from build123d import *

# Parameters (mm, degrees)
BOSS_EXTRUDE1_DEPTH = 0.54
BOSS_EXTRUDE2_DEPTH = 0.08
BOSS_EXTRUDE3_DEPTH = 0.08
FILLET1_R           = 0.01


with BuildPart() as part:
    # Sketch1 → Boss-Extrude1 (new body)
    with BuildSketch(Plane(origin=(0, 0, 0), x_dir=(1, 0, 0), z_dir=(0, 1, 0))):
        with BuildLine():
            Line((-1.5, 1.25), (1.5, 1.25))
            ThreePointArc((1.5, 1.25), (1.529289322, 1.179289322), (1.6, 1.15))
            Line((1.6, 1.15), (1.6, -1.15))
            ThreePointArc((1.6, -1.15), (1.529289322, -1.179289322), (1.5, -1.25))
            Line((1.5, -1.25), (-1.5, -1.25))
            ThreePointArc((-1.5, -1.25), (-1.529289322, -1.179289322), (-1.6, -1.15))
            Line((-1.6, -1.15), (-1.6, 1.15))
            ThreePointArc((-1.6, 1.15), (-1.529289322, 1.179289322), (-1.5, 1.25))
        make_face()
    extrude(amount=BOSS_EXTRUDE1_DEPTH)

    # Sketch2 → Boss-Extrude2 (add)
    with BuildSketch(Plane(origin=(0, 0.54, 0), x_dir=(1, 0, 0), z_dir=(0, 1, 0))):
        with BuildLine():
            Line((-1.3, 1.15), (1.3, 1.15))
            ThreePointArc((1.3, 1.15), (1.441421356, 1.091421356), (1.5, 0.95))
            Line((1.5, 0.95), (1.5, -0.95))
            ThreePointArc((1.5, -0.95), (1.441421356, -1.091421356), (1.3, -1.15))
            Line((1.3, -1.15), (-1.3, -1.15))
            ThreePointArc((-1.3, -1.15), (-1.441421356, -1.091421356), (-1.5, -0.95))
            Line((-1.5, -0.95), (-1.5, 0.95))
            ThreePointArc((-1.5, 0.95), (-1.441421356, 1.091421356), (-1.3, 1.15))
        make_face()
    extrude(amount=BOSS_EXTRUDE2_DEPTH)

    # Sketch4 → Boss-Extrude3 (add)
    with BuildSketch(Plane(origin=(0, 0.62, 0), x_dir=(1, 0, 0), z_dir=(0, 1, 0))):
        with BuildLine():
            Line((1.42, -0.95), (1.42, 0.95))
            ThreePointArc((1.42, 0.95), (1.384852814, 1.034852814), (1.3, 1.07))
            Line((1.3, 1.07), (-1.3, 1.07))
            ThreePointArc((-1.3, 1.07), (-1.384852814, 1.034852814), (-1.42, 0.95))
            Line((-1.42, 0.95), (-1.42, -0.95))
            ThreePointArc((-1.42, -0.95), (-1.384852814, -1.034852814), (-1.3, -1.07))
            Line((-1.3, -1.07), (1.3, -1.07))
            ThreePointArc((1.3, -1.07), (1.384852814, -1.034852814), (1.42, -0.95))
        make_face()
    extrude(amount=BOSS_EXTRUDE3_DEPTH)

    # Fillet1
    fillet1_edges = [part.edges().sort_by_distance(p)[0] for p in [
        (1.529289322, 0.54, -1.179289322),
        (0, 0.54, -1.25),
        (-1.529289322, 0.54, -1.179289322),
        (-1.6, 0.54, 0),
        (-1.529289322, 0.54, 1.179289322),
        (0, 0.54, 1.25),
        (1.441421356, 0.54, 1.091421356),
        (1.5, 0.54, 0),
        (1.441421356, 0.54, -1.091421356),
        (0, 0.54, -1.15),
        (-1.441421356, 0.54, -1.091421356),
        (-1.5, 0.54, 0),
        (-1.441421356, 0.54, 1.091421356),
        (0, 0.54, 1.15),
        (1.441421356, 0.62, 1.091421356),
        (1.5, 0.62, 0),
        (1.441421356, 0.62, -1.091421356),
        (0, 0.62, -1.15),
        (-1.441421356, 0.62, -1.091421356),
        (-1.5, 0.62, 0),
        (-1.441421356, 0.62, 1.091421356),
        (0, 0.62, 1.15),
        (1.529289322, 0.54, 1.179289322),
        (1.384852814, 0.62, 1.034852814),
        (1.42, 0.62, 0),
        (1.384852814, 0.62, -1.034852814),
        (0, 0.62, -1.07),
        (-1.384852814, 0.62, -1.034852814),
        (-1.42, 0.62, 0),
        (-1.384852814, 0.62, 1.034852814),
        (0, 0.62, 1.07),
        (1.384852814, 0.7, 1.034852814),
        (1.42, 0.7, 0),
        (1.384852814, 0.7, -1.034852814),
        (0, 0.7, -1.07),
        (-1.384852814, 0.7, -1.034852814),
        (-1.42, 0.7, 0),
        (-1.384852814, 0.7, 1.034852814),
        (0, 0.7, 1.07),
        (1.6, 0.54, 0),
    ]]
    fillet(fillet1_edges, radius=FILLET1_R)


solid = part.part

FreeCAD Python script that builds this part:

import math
import FreeCAD as App
import Part
import Sketcher

V = App.Vector
Q = App.Units.Quantity


def edges_at(feature, points):
    """Names of the edges that pass closest to the given points."""
    edges = feature.Shape.Edges
    near = lambda p: min(range(len(edges)), key=lambda i: edges[i].distToShape(Part.Vertex(*p))[0])
    return sorted({f"Edge{near(p) + 1}" for p in points})

doc = App.newDocument("Part")
params = doc.addObject("Spreadsheet::Sheet", "Params")
for row, (alias, value) in enumerate([
    ("sketch1_radius", "0.1 mm"),
    ("sketch1_width", "3 mm"),
    ("sketch1_height", "2.3 mm"),
    ("pad1_length", "0.54 mm"),
    ("sketch2_radius", "0.2 mm"),
    ("sketch2_width", "2.6 mm"),
    ("sketch2_height", "1.9 mm"),
    ("pad2_length", "0.08 mm"),
    ("sketch3_radius", "0.12 mm"),
    ("sketch3_width", "2.6 mm"),
    ("sketch3_height", "1.9 mm"),
    ("pad3_length", "0.08 mm"),
    ("fillet_radius", "0.01 mm"),
], start=1):
    params.set(f"A{row}", alias)
    params.set(f"B{row}", "=" + value)
    params.setAlias(f"B{row}", alias)

body = doc.addObject("PartDesign::Body", "Body")

sketch1 = doc.addObject("Sketcher::SketchObject", "Sketch")
body.addObject(sketch1)
sketch1.AttachmentSupport = (doc.XZ_Plane, [""])
sketch1.MapMode = "FlatFace"
sketch1.addGeometry(Part.LineSegment(V(1.5, -1.25, 0), V(-1.5, -1.25, 0)), False)
sketch1.addGeometry(Part.ArcOfCircle(Part.Circle(V(-1.6, -1.25, 0), V(0, 0, 1), 0.1), math.radians(0), math.radians(90)), False)
sketch1.addGeometry(Part.LineSegment(V(-1.6, -1.15, 0), V(-1.6, 1.15, 0)), False)
sketch1.addGeometry(Part.ArcOfCircle(Part.Circle(V(-1.6, 1.25, 0), V(0, 0, 1), 0.1), math.radians(-90), math.radians(0)), False)
sketch1.addGeometry(Part.LineSegment(V(-1.5, 1.25, 0), V(1.5, 1.25, 0)), False)
sketch1.addGeometry(Part.ArcOfCircle(Part.Circle(V(1.6, 1.25, 0), V(0, 0, 1), 0.1), math.radians(180), math.radians(270)), False)
sketch1.addGeometry(Part.LineSegment(V(1.6, 1.15, 0), V(1.6, -1.15, 0)), False)
sketch1.addGeometry(Part.ArcOfCircle(Part.Circle(V(1.6, -1.25, 0), V(0, 0, 1), 0.1), math.radians(90), math.radians(180)), False)
sketch1.addConstraint(Sketcher.Constraint("Coincident", 0, 2, 1, 1))
sketch1.addConstraint(Sketcher.Constraint("Coincident", 1, 2, 2, 1))
sketch1.addConstraint(Sketcher.Constraint("Coincident", 2, 2, 3, 1))
sketch1.addConstraint(Sketcher.Constraint("Coincident", 3, 2, 4, 1))
sketch1.addConstraint(Sketcher.Constraint("Coincident", 4, 2, 5, 1))
sketch1.addConstraint(Sketcher.Constraint("Coincident", 5, 2, 6, 1))
sketch1.addConstraint(Sketcher.Constraint("Coincident", 6, 2, 7, 1))
sketch1.addConstraint(Sketcher.Constraint("Coincident", 7, 2, 0, 1))
sketch1.addConstraint(Sketcher.Constraint("Horizontal", 0))
sketch1.addConstraint(Sketcher.Constraint("Vertical", 2))
sketch1.addConstraint(Sketcher.Constraint("Horizontal", 4))
sketch1.addConstraint(Sketcher.Constraint("Vertical", 6))
sketch1.addConstraint(Sketcher.Constraint("Equal", 1, 3))
sketch1.addConstraint(Sketcher.Constraint("Equal", 3, 5))
sketch1.addConstraint(Sketcher.Constraint("Equal", 5, 7))
sketch1.addConstraint(Sketcher.Constraint("Symmetric", 1, 3, 5, 3, -1, 1))
sketch1.addConstraint(Sketcher.Constraint("Symmetric", 3, 3, 7, 3, -1, 1))
sketch1.addConstraint(Sketcher.Constraint("Symmetric", 3, 3, 5, 3, -2))
sketch1.addConstraint(Sketcher.Constraint("Horizontal", 7, 3, 0, 2))
sketch1.addConstraint(Sketcher.Constraint("Horizontal", 5, 3, 3, 2))
sketch1.addConstraint(Sketcher.Constraint("Vertical", 3, 3, 1, 2))
sketch1.addConstraint(Sketcher.Constraint("Vertical", 7, 3, 5, 2))
sketch1.addConstraint(Sketcher.Constraint("Radius", 1, Q("0.1 mm")))
sketch1.addConstraint(Sketcher.Constraint("DistanceX", 0, 2, 0, 1, Q("3 mm")))
sketch1.addConstraint(Sketcher.Constraint("DistanceY", 2, 1, 2, 2, Q("2.3 mm")))
sketch1.setExpression("Constraints[22]", "Params.sketch1_radius")
sketch1.setExpression("Constraints[23]", "Params.sketch1_width")
sketch1.setExpression("Constraints[24]", "Params.sketch1_height")
pad1 = doc.addObject("PartDesign::Pad", "Pad")
body.addObject(pad1)
pad1.Profile = sketch1
pad1.setExpression("Length", "Params.pad1_length")
pad1.Reversed = True

sketch2 = doc.addObject("Sketcher::SketchObject", "Sketch001")
body.addObject(sketch2)
sketch2.AttachmentSupport = (doc.XZ_Plane, [""])
sketch2.MapMode = "FlatFace"
sketch2.AttachmentOffset = App.Placement(V(0, 0, -0.54), App.Rotation())
sketch2.addGeometry(Part.LineSegment(V(1.3, -1.15, 0), V(-1.3, -1.15, 0)), False)
sketch2.addGeometry(Part.ArcOfCircle(Part.Circle(V(-1.3, -0.95, 0), V(0, 0, 1), 0.2), math.radians(-180), math.radians(-90)), False)
sketch2.addGeometry(Part.LineSegment(V(-1.5, -0.95, 0), V(-1.5, 0.95, 0)), False)
sketch2.addGeometry(Part.ArcOfCircle(Part.Circle(V(-1.3, 0.95, 0), V(0, 0, 1), 0.2), math.radians(90), math.radians(180)), False)
sketch2.addGeometry(Part.LineSegment(V(-1.3, 1.15, 0), V(1.3, 1.15, 0)), False)
sketch2.addGeometry(Part.ArcOfCircle(Part.Circle(V(1.3, 0.95, 0), V(0, 0, 1), 0.2), math.radians(0), math.radians(90)), False)
sketch2.addGeometry(Part.LineSegment(V(1.5, 0.95, 0), V(1.5, -0.95, 0)), False)
sketch2.addGeometry(Part.ArcOfCircle(Part.Circle(V(1.3, -0.95, 0), V(0, 0, 1), 0.2), math.radians(-90), math.radians(0)), False)
sketch2.addConstraint(Sketcher.Constraint("Tangent", 0, 2, 1, 2))
sketch2.addConstraint(Sketcher.Constraint("Tangent", 1, 1, 2, 1))
sketch2.addConstraint(Sketcher.Constraint("Tangent", 2, 2, 3, 2))
sketch2.addConstraint(Sketcher.Constraint("Tangent", 3, 1, 4, 1))
sketch2.addConstraint(Sketcher.Constraint("Tangent", 4, 2, 5, 2))
sketch2.addConstraint(Sketcher.Constraint("Tangent", 5, 1, 6, 1))
sketch2.addConstraint(Sketcher.Constraint("Tangent", 6, 2, 7, 2))
sketch2.addConstraint(Sketcher.Constraint("Tangent", 7, 1, 0, 1))
sketch2.addConstraint(Sketcher.Constraint("Horizontal", 0))
sketch2.addConstraint(Sketcher.Constraint("Vertical", 2))
sketch2.addConstraint(Sketcher.Constraint("Horizontal", 4))
sketch2.addConstraint(Sketcher.Constraint("Vertical", 6))
sketch2.addConstraint(Sketcher.Constraint("Equal", 1, 3))
sketch2.addConstraint(Sketcher.Constraint("Equal", 3, 5))
sketch2.addConstraint(Sketcher.Constraint("Equal", 5, 7))
sketch2.addConstraint(Sketcher.Constraint("Symmetric", 1, 3, 5, 3, -1, 1))
sketch2.addConstraint(Sketcher.Constraint("Radius", 1, Q("0.2 mm")))
sketch2.addConstraint(Sketcher.Constraint("DistanceX", 0, 2, 0, 1, Q("2.6 mm")))
sketch2.addConstraint(Sketcher.Constraint("DistanceY", 2, 1, 2, 2, Q("1.9 mm")))
sketch2.setExpression("Constraints[16]", "Params.sketch2_radius")
sketch2.setExpression("Constraints[17]", "Params.sketch2_width")
sketch2.setExpression("Constraints[18]", "Params.sketch2_height")
pad2 = doc.addObject("PartDesign::Pad", "Pad001")
body.addObject(pad2)
pad2.Profile = sketch2
pad2.setExpression("Length", "Params.pad2_length")
pad2.Reversed = True

sketch3 = doc.addObject("Sketcher::SketchObject", "Sketch002")
body.addObject(sketch3)
sketch3.AttachmentSupport = (doc.XZ_Plane, [""])
sketch3.MapMode = "FlatFace"
sketch3.AttachmentOffset = App.Placement(V(0, 0, -0.62), App.Rotation())
sketch3.addGeometry(Part.LineSegment(V(1.42, 0.95, 0), V(1.42, -0.95, 0)), False)
sketch3.addGeometry(Part.ArcOfCircle(Part.Circle(V(1.3, -0.95, 0), V(0, 0, 1), 0.12), math.radians(-90), math.radians(0)), False)
sketch3.addGeometry(Part.LineSegment(V(1.3, -1.07, 0), V(-1.3, -1.07, 0)), False)
sketch3.addGeometry(Part.ArcOfCircle(Part.Circle(V(-1.3, -0.95, 0), V(0, 0, 1), 0.12), math.radians(180), math.radians(270)), False)
sketch3.addGeometry(Part.LineSegment(V(-1.42, -0.95, 0), V(-1.42, 0.95, 0)), False)
sketch3.addGeometry(Part.ArcOfCircle(Part.Circle(V(-1.3, 0.95, 0), V(0, 0, 1), 0.12), math.radians(90), math.radians(180)), False)
sketch3.addGeometry(Part.LineSegment(V(-1.3, 1.07, 0), V(1.3, 1.07, 0)), False)
sketch3.addGeometry(Part.ArcOfCircle(Part.Circle(V(1.3, 0.95, 0), V(0, 0, 1), 0.12), math.radians(0), math.radians(90)), False)
sketch3.addConstraint(Sketcher.Constraint("Tangent", 0, 2, 1, 2))
sketch3.addConstraint(Sketcher.Constraint("Tangent", 1, 1, 2, 1))
sketch3.addConstraint(Sketcher.Constraint("Tangent", 2, 2, 3, 2))
sketch3.addConstraint(Sketcher.Constraint("Tangent", 3, 1, 4, 1))
sketch3.addConstraint(Sketcher.Constraint("Tangent", 4, 2, 5, 2))
sketch3.addConstraint(Sketcher.Constraint("Tangent", 5, 1, 6, 1))
sketch3.addConstraint(Sketcher.Constraint("Tangent", 6, 2, 7, 2))
sketch3.addConstraint(Sketcher.Constraint("Tangent", 7, 1, 0, 1))
sketch3.addConstraint(Sketcher.Constraint("Vertical", 0))
sketch3.addConstraint(Sketcher.Constraint("Horizontal", 2))
sketch3.addConstraint(Sketcher.Constraint("Vertical", 4))
sketch3.addConstraint(Sketcher.Constraint("Horizontal", 6))
sketch3.addConstraint(Sketcher.Constraint("Equal", 1, 3))
sketch3.addConstraint(Sketcher.Constraint("Equal", 3, 5))
sketch3.addConstraint(Sketcher.Constraint("Equal", 5, 7))
sketch3.addConstraint(Sketcher.Constraint("Symmetric", 1, 3, 5, 3, -1, 1))
sketch3.addConstraint(Sketcher.Constraint("Radius", 1, Q("0.12 mm")))
sketch3.addConstraint(Sketcher.Constraint("DistanceX", 2, 2, 2, 1, Q("2.6 mm")))
sketch3.addConstraint(Sketcher.Constraint("DistanceY", 0, 2, 0, 1, Q("1.9 mm")))
sketch3.setExpression("Constraints[16]", "Params.sketch3_radius")
sketch3.setExpression("Constraints[17]", "Params.sketch3_width")
sketch3.setExpression("Constraints[18]", "Params.sketch3_height")
pad3 = doc.addObject("PartDesign::Pad", "Pad002")
body.addObject(pad3)
pad3.Profile = sketch3
pad3.setExpression("Length", "Params.pad3_length")
pad3.Reversed = True
doc.recompute()

fillet = doc.addObject("PartDesign::Fillet", "Fillet")
body.addObject(fillet)
fillet.Base = (pad3, edges_at(pad3, [
    (1.529, 0.54, -1.179),
    (0, 0.54, -1.25),
    (-1.529, 0.54, -1.179),
    (-1.6, 0.54, 0),
    (-1.529, 0.54, 1.179),
    (0, 0.54, 1.25),
    (1.441, 0.54, 1.091),
    (1.5, 0.54, 0),
    (1.441, 0.54, -1.091),
    (0, 0.54, -1.15),
    (-1.441, 0.54, -1.091),
    (-1.5, 0.54, 0),
    (-1.441, 0.54, 1.091),
    (0, 0.54, 1.15),
    (1.441, 0.62, 1.091),
    (1.5, 0.62, 0),
    (1.441, 0.62, -1.091),
    (0, 0.62, -1.15),
    (-1.441, 0.62, -1.091),
    (-1.5, 0.62, 0),
    (-1.441, 0.62, 1.091),
    (0, 0.62, 1.15),
    (1.529, 0.54, 1.179),
    (1.385, 0.62, 1.035),
    (1.42, 0.62, 0),
    (1.385, 0.62, -1.035),
    (0, 0.62, -1.07),
    (-1.385, 0.62, -1.035),
    (-1.42, 0.62, 0),
    (-1.385, 0.62, 1.035),
    (0, 0.62, 1.07),
    (1.385, 0.7, 1.035),
    (1.42, 0.7, 0),
    (1.385, 0.7, -1.035),
    (0, 0.7, -1.07),
    (-1.385, 0.7, -1.035),
    (-1.42, 0.7, 0),
    (-1.385, 0.7, 1.035),
    (0, 0.7, 1.07),
    (1.6, 0.54, 0),
]))
fillet.setExpression("Radius", "Params.fillet_radius")

doc.recompute()
